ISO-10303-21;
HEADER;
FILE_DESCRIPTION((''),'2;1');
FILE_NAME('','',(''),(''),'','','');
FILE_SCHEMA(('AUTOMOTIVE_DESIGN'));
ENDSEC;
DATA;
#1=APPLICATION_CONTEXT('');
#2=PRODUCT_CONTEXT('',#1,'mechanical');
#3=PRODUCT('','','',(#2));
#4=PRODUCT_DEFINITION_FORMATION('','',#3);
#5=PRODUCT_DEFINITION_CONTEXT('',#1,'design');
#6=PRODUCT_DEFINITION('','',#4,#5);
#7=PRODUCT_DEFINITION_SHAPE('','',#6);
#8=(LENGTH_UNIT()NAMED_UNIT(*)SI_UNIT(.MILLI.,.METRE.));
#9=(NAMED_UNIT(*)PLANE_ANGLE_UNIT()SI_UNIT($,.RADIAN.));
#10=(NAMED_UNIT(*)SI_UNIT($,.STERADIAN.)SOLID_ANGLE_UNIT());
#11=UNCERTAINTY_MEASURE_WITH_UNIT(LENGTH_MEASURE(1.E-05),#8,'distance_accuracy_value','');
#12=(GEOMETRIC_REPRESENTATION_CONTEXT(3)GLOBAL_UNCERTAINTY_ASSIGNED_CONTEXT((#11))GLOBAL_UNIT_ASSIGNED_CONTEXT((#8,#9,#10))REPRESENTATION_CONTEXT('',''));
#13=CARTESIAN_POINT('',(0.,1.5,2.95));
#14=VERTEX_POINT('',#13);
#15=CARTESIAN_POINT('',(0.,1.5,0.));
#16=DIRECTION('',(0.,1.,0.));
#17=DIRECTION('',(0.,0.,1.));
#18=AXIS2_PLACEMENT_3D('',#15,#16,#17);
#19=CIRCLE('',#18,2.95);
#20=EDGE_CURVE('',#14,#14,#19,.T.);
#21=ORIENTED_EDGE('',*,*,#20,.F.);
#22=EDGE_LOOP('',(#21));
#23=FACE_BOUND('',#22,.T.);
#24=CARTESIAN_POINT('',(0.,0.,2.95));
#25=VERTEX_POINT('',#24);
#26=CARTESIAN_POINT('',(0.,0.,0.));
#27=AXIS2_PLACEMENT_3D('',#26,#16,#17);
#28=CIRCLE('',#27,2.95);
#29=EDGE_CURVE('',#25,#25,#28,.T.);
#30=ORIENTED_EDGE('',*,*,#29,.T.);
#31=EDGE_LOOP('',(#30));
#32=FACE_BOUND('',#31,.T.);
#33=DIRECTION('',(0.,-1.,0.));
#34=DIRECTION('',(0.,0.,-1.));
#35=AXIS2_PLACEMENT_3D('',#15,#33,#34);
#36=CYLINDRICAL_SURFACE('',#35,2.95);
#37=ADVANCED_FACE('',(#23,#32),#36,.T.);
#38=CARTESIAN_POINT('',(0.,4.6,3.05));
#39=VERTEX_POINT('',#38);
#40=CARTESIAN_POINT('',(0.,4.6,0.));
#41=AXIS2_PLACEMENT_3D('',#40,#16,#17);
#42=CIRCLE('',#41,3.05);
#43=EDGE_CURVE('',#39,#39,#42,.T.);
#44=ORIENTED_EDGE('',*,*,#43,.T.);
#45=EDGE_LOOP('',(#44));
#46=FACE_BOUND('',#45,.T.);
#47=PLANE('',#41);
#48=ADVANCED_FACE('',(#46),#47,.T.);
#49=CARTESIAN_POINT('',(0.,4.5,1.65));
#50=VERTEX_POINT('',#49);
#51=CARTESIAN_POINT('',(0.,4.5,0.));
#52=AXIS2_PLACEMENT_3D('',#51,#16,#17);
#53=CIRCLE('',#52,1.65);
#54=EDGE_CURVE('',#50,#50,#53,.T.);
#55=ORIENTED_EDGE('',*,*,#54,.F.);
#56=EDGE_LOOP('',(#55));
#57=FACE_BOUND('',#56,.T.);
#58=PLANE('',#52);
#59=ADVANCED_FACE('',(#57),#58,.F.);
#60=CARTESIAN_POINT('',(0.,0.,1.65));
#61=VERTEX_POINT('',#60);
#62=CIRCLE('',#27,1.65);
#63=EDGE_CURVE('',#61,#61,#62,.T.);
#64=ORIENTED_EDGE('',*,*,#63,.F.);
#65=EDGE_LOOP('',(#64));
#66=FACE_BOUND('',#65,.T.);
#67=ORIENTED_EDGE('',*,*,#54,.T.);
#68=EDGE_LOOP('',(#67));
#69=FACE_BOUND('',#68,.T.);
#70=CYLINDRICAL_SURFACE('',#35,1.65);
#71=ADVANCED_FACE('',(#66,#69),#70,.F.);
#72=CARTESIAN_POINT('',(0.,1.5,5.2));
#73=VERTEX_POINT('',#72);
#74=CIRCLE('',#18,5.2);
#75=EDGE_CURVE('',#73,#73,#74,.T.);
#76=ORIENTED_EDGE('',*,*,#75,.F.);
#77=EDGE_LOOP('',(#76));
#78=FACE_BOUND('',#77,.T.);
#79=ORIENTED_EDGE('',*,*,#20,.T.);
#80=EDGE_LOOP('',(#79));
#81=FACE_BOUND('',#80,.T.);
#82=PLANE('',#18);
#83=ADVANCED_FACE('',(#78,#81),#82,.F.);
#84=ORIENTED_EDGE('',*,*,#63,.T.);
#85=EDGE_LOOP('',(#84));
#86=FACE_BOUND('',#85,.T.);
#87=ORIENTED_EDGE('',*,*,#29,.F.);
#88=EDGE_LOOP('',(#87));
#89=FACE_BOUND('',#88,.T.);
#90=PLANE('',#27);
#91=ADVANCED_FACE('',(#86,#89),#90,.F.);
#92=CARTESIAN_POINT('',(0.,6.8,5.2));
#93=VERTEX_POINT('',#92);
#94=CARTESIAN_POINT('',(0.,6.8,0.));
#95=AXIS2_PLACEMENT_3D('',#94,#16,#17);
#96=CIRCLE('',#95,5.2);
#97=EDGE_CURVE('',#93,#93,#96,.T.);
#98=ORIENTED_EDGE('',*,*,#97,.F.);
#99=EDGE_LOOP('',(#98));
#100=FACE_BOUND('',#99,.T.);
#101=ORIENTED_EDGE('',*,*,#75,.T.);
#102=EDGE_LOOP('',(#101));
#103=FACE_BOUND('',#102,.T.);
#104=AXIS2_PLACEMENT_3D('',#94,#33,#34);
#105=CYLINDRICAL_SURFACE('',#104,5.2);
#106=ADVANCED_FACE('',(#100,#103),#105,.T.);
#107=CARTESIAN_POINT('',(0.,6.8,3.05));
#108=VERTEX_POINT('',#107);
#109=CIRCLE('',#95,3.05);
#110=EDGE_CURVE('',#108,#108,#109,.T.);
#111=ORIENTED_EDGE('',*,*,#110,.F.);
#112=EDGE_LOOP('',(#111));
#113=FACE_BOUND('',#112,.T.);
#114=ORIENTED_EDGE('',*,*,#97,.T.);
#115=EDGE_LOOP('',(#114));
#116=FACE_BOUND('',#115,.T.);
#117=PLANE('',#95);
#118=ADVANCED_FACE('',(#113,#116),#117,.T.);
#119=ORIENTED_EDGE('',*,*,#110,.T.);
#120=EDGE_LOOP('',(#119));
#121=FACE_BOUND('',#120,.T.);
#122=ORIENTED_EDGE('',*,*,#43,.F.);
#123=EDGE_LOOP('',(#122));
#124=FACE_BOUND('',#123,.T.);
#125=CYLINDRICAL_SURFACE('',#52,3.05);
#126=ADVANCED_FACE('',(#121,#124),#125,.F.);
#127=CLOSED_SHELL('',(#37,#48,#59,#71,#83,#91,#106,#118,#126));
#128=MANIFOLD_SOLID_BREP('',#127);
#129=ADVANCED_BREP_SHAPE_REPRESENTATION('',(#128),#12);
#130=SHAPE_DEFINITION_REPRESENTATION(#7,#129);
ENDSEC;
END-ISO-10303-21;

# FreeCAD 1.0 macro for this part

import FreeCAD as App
import Part
import Sketcher

V = App.Vector
Q = App.Units.Quantity

doc = App.newDocument("Part")
body = doc.addObject("PartDesign::Body", "Body")

# Sketch on XZ plane
sketch1 = body.newObject("Sketcher::SketchObject", "Sketch")
sketch1.AttachmentSupport = (doc.getObject("XZ_Plane"), [""])
sketch1.MapMode = "FlatFace"
sketch1.addGeometry([
    Part.Circle(V(0, 0, 0), V(0, 0, 1), 3),
    Part.Circle(V(0, 0, 0), V(0, 0, 1), 1.6),
], False)
sketch1.addConstraint([
    Sketcher.Constraint("Coincident", 0, 3, -1, 1),
    Sketcher.Constraint("Coincident", 1, 3, -1, 1),
    Sketcher.Constraint("Diameter", 0, Q("5.9 mm")),
    Sketcher.Constraint("Diameter", 1, Q("3.3 mm")),
])
pad1 = body.newObject("PartDesign::Pad", "Pad")
pad1.Profile = sketch1
pad1.Length = 1.5
pad1.Reversed = True

# Sketch on XZ plane
sketch2 = body.newObject("Sketcher::SketchObject", "Sketch001")
sketch2.AttachmentSupport = (doc.getObject("XZ_Plane"), [""])
sketch2.MapMode = "FlatFace"
sketch2.AttachmentOffset = App.Placement(V(0, 0, -1.5), App.Rotation())
sketch2.addGeometry(Part.Circle(V(0, 0, 0), V(0, 0, 1), 5), False)
sketch2.addConstraint([
    Sketcher.Constraint("Coincident", 0, 3, -1, 1),
    Sketcher.Constraint("Diameter", 0, Q("10.4 mm")),
])
pad2 = body.newObject("PartDesign::Pad", "Pad001")
pad2.Profile = sketch2
pad2.Length = 5.3
pad2.Reversed = True

# Sketch on XZ plane
sketch3 = body.newObject("Sketcher::SketchObject", "Sketch002")
sketch3.AttachmentSupport = (doc.getObject("XZ_Plane"), [""])
sketch3.MapMode = "FlatFace"
sketch3.AttachmentOffset = App.Placement(V(0, 0, -6.8), App.Rotation())
sketch3.addGeometry(Part.Circle(V(0, 0, 0), V(0, 0, 1), 3), False)
sketch3.addConstraint([
    Sketcher.Constraint("Coincident", 0, 3, -1, 1),
    Sketcher.Constraint("Diameter", 0, Q("6.1 mm")),
])
pocket1 = body.newObject("PartDesign::Pocket", "Pocket")
pocket1.Profile = sketch3
pocket1.Length = 2.3
pocket1.Reversed = True

# Sketch on XZ plane
sketch4 = body.newObject("Sketcher::SketchObject", "Sketch003")
sketch4.AttachmentSupport = (doc.getObject("XZ_Plane"), [""])
sketch4.MapMode = "FlatFace"
sketch4.addGeometry(Part.Circle(V(0, 0, 0), V(0, 0, 1), 1.6), False)
sketch4.addConstraint([
    Sketcher.Constraint("Coincident", 0, 3, -1, 1),
    Sketcher.Constraint("Diameter", 0, Q("3.3 mm")),
])
pocket2 = body.newObject("PartDesign::Pocket", "Pocket001")
pocket2.Profile = sketch4
pocket2.Length = 4.6

# Sketch on XZ plane
sketch5 = body.newObject("Sketcher::SketchObject", "Sketch004")
sketch5.AttachmentSupport = (doc.getObject("XZ_Plane"), [""])
sketch5.MapMode = "FlatFace"
sketch5.AttachmentOffset = App.Placement(V(0, 0, -4.6), App.Rotation())
sketch5.addGeometry(Part.Circle(V(0, 0, 0), V(0, 0, 1), 3), False)
sketch5.addConstraint([
    Sketcher.Constraint("Coincident", 0, 3, -1, 1),
    Sketcher.Constraint("Diameter", 0, Q("6.1 mm")),
])
pad3 = body.newObject("PartDesign::Pad", "Pad002")
pad3.Profile = sketch5
pad3.Length = 0.1

doc.recompute()
